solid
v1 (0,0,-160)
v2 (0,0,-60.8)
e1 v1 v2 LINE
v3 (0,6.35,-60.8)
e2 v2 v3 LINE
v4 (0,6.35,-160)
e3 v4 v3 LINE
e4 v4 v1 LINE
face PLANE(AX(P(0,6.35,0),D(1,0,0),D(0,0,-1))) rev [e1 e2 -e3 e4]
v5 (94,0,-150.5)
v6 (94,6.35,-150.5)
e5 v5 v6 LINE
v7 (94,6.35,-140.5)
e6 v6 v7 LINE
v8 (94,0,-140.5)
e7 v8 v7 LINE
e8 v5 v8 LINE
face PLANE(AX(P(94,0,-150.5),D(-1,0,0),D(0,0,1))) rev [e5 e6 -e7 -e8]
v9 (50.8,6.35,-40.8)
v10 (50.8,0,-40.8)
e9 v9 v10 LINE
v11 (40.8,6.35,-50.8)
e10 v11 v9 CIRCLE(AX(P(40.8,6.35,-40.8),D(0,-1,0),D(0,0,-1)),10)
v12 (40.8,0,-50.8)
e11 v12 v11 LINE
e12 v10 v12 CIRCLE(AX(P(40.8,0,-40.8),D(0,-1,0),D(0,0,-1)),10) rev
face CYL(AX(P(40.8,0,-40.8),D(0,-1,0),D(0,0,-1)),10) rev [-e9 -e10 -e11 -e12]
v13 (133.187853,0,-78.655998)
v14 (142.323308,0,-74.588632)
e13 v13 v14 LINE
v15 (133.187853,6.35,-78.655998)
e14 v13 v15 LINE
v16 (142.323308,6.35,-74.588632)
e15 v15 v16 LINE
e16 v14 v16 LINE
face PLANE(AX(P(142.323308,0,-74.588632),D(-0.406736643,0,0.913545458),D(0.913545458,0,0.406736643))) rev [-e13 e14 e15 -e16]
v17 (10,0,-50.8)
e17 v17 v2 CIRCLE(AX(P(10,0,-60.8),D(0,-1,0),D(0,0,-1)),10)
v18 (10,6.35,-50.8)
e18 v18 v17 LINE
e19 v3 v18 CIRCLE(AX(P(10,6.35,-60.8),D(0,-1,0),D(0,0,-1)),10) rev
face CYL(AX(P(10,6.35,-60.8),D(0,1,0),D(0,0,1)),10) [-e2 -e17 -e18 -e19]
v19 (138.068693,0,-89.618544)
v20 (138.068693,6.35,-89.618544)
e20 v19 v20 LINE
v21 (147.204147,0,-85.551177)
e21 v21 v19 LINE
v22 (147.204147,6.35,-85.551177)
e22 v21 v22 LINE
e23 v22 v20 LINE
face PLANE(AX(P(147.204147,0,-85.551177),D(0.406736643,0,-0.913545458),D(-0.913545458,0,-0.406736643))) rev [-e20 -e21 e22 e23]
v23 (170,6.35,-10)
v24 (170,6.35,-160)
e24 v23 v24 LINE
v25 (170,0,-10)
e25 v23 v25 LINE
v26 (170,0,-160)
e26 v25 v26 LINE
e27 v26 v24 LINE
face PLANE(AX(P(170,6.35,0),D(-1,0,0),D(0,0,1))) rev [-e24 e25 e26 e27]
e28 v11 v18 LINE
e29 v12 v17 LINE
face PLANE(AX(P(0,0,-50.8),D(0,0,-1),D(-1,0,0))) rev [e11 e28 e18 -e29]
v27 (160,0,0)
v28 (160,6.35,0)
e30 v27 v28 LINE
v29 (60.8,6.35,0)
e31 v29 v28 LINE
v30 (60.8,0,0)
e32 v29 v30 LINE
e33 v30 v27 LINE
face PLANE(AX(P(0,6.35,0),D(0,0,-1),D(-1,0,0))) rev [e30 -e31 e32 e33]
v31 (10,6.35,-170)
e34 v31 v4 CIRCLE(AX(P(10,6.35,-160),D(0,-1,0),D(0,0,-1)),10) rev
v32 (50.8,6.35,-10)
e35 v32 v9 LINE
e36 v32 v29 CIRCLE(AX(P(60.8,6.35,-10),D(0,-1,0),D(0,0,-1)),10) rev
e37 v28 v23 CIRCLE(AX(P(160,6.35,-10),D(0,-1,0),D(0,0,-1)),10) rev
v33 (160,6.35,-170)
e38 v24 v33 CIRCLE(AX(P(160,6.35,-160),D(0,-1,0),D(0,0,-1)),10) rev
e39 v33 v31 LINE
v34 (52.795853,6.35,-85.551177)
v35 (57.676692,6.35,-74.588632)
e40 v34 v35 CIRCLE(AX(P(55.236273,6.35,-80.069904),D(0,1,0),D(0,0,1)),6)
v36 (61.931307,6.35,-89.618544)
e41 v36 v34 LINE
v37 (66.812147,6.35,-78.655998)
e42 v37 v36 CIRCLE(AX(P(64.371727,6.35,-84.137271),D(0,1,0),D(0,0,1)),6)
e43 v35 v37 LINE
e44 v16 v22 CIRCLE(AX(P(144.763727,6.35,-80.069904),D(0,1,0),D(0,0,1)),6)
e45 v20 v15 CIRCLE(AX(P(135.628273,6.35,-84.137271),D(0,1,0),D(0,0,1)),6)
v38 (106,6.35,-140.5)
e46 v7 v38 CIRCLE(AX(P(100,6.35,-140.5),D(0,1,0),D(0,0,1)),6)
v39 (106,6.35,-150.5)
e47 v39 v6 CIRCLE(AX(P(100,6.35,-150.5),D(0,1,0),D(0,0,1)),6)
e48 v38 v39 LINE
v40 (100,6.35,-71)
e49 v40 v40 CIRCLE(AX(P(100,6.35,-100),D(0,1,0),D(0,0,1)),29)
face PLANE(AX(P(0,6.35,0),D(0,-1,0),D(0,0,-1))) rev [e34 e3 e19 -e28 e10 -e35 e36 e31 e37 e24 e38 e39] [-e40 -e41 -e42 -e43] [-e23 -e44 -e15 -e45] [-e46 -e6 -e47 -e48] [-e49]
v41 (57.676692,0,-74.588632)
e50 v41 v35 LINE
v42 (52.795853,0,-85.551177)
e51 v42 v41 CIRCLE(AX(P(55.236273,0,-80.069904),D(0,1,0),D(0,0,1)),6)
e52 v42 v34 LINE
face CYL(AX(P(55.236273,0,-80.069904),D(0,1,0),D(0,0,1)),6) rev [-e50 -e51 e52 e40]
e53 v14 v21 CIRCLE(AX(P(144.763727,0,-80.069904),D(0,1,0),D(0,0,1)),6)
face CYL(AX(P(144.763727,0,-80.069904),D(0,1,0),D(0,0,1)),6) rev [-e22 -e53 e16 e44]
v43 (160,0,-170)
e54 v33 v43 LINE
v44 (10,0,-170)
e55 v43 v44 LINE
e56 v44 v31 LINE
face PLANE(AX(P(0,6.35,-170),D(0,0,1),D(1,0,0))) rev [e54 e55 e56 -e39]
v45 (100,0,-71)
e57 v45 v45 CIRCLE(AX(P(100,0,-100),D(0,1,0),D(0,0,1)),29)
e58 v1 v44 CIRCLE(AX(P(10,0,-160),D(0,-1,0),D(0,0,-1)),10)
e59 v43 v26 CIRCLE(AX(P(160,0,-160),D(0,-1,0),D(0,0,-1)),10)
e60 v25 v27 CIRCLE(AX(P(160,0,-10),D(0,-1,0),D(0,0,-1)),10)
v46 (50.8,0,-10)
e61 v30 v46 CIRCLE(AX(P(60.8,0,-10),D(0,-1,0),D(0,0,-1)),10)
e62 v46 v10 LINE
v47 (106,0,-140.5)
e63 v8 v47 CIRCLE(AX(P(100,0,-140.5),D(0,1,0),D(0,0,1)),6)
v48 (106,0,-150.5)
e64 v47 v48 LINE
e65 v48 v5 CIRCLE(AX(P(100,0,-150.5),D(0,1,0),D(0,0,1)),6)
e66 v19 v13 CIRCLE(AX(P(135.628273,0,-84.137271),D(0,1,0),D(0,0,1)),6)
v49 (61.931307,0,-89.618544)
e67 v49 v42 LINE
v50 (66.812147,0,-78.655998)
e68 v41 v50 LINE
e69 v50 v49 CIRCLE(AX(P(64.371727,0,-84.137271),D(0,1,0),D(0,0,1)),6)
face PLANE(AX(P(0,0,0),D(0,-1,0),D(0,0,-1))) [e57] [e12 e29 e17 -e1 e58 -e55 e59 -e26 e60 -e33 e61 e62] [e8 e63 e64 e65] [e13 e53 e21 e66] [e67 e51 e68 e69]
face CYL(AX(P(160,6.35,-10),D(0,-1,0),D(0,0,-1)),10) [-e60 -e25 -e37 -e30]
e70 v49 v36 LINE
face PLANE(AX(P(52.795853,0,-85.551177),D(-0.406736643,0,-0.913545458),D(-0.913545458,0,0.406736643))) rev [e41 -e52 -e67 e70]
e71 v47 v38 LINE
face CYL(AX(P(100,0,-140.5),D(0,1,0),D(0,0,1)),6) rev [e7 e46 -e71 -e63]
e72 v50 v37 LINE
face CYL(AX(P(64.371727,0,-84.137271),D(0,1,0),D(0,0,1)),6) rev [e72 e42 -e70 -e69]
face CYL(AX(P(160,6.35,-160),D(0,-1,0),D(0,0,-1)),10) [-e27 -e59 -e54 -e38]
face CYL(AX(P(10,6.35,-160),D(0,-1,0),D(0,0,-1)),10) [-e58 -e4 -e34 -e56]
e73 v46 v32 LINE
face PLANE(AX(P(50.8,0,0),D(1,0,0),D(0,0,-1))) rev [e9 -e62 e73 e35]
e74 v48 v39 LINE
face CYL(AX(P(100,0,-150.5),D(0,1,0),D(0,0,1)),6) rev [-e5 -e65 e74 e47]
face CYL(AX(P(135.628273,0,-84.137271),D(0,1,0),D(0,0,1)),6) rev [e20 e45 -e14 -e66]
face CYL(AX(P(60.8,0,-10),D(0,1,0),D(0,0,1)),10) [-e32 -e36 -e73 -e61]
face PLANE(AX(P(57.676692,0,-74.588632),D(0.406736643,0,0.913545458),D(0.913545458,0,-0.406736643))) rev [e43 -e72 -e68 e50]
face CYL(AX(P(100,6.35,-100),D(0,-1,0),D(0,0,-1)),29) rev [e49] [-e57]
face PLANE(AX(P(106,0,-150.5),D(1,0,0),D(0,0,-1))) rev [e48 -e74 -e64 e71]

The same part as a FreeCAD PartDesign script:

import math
import FreeCAD as App
import Part
import Sketcher

V = App.Vector
Q = App.Units.Quantity


def edges_at(feature, points):
    """Names of the edges that pass closest to the given points."""
    edges = feature.Shape.Edges
    near = lambda p: min(range(len(edges)), key=lambda i: edges[i].distToShape(Part.Vertex(*p))[0])
    return sorted({f"Edge{near(p) + 1}" for p in points})

doc = App.newDocument("Part")
body = doc.addObject("PartDesign::Body", "Body")

sketch1 = doc.addObject("Sketcher::SketchObject", "Sketch")
body.addObject(sketch1)
sketch1.AttachmentSupport = (doc.XZ_Plane, [""])
sketch1.MapMode = "FlatFace"
sketch1.addGeometry([
    Part.LineSegment(V(0, -170, 0), V(0, 0, 0)),
    Part.LineSegment(V(0, 0, 0), V(170, 0, 0)),
    Part.LineSegment(V(170, 0, 0), V(170, -170, 0)),
    Part.LineSegment(V(170, -170, 0), V(0, -170, 0)),
    Part.Circle(V(100, -100, 0), V(0, 0, 1), 29),
], False)
sketch1.addConstraint([
    Sketcher.Constraint("Coincident", 0, 2, 1, 1),
    Sketcher.Constraint("Coincident", 1, 2, 2, 1),
    Sketcher.Constraint("Coincident", 2, 2, 3, 1),
    Sketcher.Constraint("Coincident", 3, 2, 0, 1),
    Sketcher.Constraint("Vertical", 0),
    Sketcher.Constraint("Horizontal", 1),
    Sketcher.Constraint("Vertical", 2),
    Sketcher.Constraint("Horizontal", 3),
    Sketcher.Constraint("Coincident", 0, 2, -1, 1),
    Sketcher.Constraint("Equal", 3, 0),
    Sketcher.Constraint("Diameter", 4, Q("58 mm")),
    Sketcher.Constraint("DistanceX", 1, 1, 1, 2, Q("170 mm")),
    Sketcher.Constraint("DistanceX", -1, 1, 4, 3, Q("100 mm")),
    Sketcher.Constraint("DistanceY", 4, 3, -1, 1, Q("100 mm")),
])
pad1 = doc.addObject("PartDesign::Pad", "Pad")
body.addObject(pad1)
pad1.Profile = sketch1
pad1.Length = 6.35
pad1.Reversed = True

sketch2 = doc.addObject("Sketcher::SketchObject", "Sketch001")
body.addObject(sketch2)
sketch2.AttachmentSupport = (doc.XZ_Plane, [""])
sketch2.MapMode = "FlatFace"
sketch2.AttachmentOffset = App.Placement(V(0, 0, -6.35), App.Rotation())
sketch2.addGeometry([
    Part.LineSegment(V(0, -51, 0), V(0, 0, 0)),
    Part.LineSegment(V(0, 0, 0), V(51, 0, 0)),
    Part.LineSegment(V(51, 0, 0), V(51, -51, 0)),
    Part.LineSegment(V(51, -51, 0), V(0, -51, 0)),
], False)
sketch2.addConstraint([
    Sketcher.Constraint("Coincident", 0, 2, 1, 1),
    Sketcher.Constraint("Coincident", 1, 2, 2, 1),
    Sketcher.Constraint("Coincident", 2, 2, 3, 1),
    Sketcher.Constraint("Coincident", 3, 2, 0, 1),
    Sketcher.Constraint("Vertical", 0),
    Sketcher.Constraint("Horizontal", 1),
    Sketcher.Constraint("Vertical", 2),
    Sketcher.Constraint("Horizontal", 3),
    Sketcher.Constraint("Coincident", 0, 2, -1, 1),
    Sketcher.Constraint("Equal", 3, 0),
    Sketcher.Constraint("DistanceX", 1, 1, 1, 2, Q("50.8 mm")),
])
pocket1 = doc.addObject("PartDesign::Pocket", "Pocket")
body.addObject(pocket1)
pocket1.Profile = sketch2
pocket1.Type = "ThroughAll"
pocket1.Reversed = True
doc.recompute()

fillet = doc.addObject("PartDesign::Fillet", "Fillet")
body.addObject(fillet)
fillet.Base = (pocket1, edges_at(pocket1, [
    (0, 3.175, -50.8),
    (50.8, 3.175, -50.8),
    (50.8, 3.175, 0),
    (0, 3.175, -170),
    (170, 3.175, -170),
    (170, 3.175, 0),
]))
fillet.Radius = 10

sketch3 = doc.addObject("Sketcher::SketchObject", "Sketch002")
body.addObject(sketch3)
sketch3.AttachmentSupport = (doc.XZ_Plane, [""])
sketch3.MapMode = "FlatFace"
sketch3.AttachmentOffset = App.Placement(V(0, 0, -6.35), App.Rotation())
sketch3.addGeometry([
    Part.LineSegment(V(106, -140, 0), V(106, -150, 0)),
    Part.ArcOfCircle(Part.Circle(V(100, -150, 0), V(0, 0, 1), 6), math.radians(180), math.radians(360)),
    Part.LineSegment(V(94, -150, 0), V(94, -140, 0)),
    Part.ArcOfCircle(Part.Circle(V(100, -140, 0), V(0, 0, 1), 6), math.radians(0), math.radians(180)),
    Part.LineSegment(V(62, -90, 0), V(53, -86, 0)),
    Part.ArcOfCircle(Part.Circle(V(55, -80, 0), V(0, 0, 1), 6), math.radians(66), math.radians(246)),
    Part.LineSegment(V(58, -75, 0), V(67, -79, 0)),
    Part.ArcOfCircle(Part.Circle(V(64, -84, 0), V(0, 0, 1), 6), math.radians(-114), math.radians(66)),
    Part.LineSegment(V(133, -79, 0), V(142, -75, 0)),
    Part.ArcOfCircle(Part.Circle(V(145, -80, 0), V(0, 0, 1), 6), math.radians(-66), math.radians(114)),
    Part.LineSegment(V(147, -86, 0), V(138, -90, 0)),
    Part.ArcOfCircle(Part.Circle(V(136, -84, 0), V(0, 0, 1), 6), math.radians(114), math.radians(294)),
], False)
sketch3.addConstraint([
    Sketcher.Constraint("Tangent", 0, 2, 1, 2),
    Sketcher.Constraint("Tangent", 1, 1, 2, 1),
    Sketcher.Constraint("Tangent", 2, 2, 3, 2),
    Sketcher.Constraint("Tangent", 3, 1, 0, 1),
    Sketcher.Constraint("Tangent", 4, 2, 5, 2),
    Sketcher.Constraint("Tangent", 5, 1, 6, 1),
    Sketcher.Constraint("Tangent", 6, 2, 7, 2),
    Sketcher.Constraint("Tangent", 7, 1, 4, 1),
    Sketcher.Constraint("Tangent", 8, 2, 9, 2),
    Sketcher.Constraint("Tangent", 9, 1, 10, 1),
    Sketcher.Constraint("Tangent", 10, 2, 11, 2),
    Sketcher.Constraint("Tangent", 11, 1, 8, 1),
    Sketcher.Constraint("Vertical", 0),
    Sketcher.Constraint("Vertical", 2),
    Sketcher.Constraint("Equal", 3, 5),
    Sketcher.Constraint("Equal", 5, 7),
    Sketcher.Constraint("Equal", 7, 9),
    Sketcher.Constraint("Equal", 9, 11),
    Sketcher.Constraint("Horizontal", 5, 3, 9, 3),
    Sketcher.Constraint("Horizontal", 7, 3, 11, 3),
    Sketcher.Constraint("Horizontal", 5, 1, 8, 2),
    Sketcher.Constraint("Radius", 1, Q("6 mm")),
    Sketcher.Constraint("DistanceY", 0, 2, 0, 1, Q("10 mm")),
    Sketcher.Constraint("Angle", 4, Q("156 deg")),
    Sketcher.Constraint("Distance", 4, Q("10 mm")),
    Sketcher.Constraint("DistanceX", -1, 1, 1, 3, Q("100 mm")),
    Sketcher.Constraint("DistanceY", 1, 3, -1, 1, Q("150.5 mm")),
    Sketcher.Constraint("DistanceY", 6, 2, -1, 1, Q("78.655998 mm")),
    Sketcher.Constraint("DistanceX", 7, 3, 9, 3, Q("80.392 mm")),
    Sketcher.Constraint("DistanceX", -1, 1, 5, 3, Q("55.236273 mm")),
])
pocket2 = doc.addObject("PartDesign::Pocket", "Pocket001")
body.addObject(pocket2)
pocket2.Profile = sketch3
pocket2.Type = "ThroughAll"
pocket2.Reversed = True

doc.recompute()
